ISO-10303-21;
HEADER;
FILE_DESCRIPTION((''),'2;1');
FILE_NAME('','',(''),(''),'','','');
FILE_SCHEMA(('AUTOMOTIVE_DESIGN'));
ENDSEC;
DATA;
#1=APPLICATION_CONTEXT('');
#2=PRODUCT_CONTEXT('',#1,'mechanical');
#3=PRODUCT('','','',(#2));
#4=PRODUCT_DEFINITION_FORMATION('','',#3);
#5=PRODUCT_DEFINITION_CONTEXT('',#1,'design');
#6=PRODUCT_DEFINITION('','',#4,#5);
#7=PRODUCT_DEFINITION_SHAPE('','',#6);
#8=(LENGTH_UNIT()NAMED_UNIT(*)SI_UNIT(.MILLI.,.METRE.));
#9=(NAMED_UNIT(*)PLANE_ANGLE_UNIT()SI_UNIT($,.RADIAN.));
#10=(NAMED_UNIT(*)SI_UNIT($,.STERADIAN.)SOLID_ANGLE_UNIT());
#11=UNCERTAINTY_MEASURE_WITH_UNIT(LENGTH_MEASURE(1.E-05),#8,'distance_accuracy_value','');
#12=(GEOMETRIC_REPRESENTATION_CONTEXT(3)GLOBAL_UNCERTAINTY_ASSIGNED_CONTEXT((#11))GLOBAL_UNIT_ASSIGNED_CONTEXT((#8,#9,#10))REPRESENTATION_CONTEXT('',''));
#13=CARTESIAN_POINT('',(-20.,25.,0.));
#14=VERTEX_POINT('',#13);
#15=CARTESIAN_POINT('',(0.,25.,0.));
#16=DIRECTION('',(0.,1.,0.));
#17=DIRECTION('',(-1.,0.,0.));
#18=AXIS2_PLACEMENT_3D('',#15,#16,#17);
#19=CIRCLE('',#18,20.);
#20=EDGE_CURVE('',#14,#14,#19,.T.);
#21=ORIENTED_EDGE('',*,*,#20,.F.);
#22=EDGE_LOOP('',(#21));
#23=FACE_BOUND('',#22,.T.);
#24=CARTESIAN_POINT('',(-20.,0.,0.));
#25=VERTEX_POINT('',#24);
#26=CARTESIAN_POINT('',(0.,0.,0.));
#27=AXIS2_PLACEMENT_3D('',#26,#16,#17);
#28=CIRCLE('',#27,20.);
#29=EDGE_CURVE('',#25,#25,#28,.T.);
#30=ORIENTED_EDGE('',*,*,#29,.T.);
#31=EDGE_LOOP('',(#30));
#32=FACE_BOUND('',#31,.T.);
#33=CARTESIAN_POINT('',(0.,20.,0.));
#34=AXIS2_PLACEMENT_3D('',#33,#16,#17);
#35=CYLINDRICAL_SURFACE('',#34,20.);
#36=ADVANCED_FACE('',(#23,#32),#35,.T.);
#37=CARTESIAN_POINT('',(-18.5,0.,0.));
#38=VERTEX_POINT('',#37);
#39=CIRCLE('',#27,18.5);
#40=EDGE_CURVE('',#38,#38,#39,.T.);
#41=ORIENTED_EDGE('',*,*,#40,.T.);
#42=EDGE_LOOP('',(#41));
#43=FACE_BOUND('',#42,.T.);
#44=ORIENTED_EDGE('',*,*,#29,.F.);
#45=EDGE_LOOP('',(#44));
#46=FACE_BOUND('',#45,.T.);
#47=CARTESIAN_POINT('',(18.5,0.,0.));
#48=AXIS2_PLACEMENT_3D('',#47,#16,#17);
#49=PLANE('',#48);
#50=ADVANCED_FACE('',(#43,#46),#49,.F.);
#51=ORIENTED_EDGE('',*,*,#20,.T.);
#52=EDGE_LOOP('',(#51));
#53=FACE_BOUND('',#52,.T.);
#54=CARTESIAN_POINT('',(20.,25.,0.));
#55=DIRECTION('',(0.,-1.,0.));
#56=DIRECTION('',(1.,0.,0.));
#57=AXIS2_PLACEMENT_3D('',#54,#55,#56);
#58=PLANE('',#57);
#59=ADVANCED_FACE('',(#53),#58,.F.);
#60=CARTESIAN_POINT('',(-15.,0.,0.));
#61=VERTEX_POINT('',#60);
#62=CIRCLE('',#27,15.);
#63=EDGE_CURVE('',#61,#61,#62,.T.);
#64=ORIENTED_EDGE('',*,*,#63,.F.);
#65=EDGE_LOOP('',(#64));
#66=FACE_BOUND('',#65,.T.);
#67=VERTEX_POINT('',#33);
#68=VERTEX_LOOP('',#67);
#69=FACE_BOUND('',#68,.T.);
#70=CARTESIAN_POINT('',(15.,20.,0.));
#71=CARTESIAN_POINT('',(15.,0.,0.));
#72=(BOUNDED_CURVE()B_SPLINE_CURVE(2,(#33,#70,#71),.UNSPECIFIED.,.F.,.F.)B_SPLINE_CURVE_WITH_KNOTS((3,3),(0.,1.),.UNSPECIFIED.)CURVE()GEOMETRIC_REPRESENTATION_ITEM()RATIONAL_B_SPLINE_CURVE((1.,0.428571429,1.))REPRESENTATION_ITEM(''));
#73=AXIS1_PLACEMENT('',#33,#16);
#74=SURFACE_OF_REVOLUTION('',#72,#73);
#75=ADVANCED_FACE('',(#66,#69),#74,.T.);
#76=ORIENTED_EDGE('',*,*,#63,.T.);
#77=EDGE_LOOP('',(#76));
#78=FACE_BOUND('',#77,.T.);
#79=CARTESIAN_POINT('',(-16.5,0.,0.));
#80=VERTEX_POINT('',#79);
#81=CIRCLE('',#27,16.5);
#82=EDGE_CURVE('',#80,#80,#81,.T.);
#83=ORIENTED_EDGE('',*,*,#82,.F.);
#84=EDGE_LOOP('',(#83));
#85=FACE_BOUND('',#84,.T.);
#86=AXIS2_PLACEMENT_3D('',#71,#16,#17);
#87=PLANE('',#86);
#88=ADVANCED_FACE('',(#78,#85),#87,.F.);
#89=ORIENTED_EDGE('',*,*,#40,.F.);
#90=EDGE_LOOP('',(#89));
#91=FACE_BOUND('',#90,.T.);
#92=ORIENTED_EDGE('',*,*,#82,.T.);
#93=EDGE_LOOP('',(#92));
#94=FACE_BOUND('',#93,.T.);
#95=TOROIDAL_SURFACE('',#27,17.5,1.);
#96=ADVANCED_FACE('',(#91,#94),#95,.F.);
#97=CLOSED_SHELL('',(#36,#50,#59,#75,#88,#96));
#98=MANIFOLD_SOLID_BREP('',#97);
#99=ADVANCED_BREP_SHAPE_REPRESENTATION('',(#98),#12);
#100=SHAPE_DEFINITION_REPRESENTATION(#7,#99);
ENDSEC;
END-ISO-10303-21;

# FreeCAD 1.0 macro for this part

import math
import FreeCAD as App
import Part
import Sketcher
from FreeCAD import Vector

doc = App.newDocument("Part")
body = doc.addObject("PartDesign::Body", "Body")

# Sketch on XY plane
sketch1 = doc.addObject("Sketcher::SketchObject", "Sketch")
body.addObject(sketch1)
sketch1.AttachmentSupport = (doc.XY_Plane, [""])
sketch1.MapMode = "FlatFace"
sketch1.addGeometry([
    Part.LineSegment(Vector(20, 0, 0), Vector(20, 25, 0)),  # 0
    Part.LineSegment(Vector(20, 25, 0), Vector(0, 25, 0)),  # 1
    Part.LineSegment(Vector(0, 25, 0), Vector(0, 20, 0)),  # 2
    Part.BSplineCurve([Vector(0, 20, 0), Vector(15, 20, 0), Vector(15, 0, 0)], [3, 3], [0, 1], False, 2, [1, 0.428571429, 1], False),  # 3
    Part.LineSegment(Vector(15, 0, 0), Vector(16.5, 0, 0)),  # 4
    Part.ArcOfCircle(Part.Circle(Vector(17.5, 0, 0), Vector(0, 0, 1), 1), math.radians(0), math.radians(180)),  # 5
    Part.LineSegment(Vector(18.5, 0, 0), Vector(20, 0, 0)),  # 6
], False)
sketch1.addConstraint([
    Sketcher.Constraint("Block", 3),
    Sketcher.Constraint("Coincident", 0, 2, 1, 1),
    Sketcher.Constraint("Coincident", 1, 2, 2, 1),
    Sketcher.Constraint("Coincident", 2, 2, 3, 1),
    Sketcher.Constraint("Coincident", 3, 2, 4, 1),
    Sketcher.Constraint("Coincident", 4, 2, 5, 2),
    Sketcher.Constraint("Coincident", 5, 1, 6, 1),
    Sketcher.Constraint("Coincident", 6, 2, 0, 1),
    Sketcher.Constraint("Vertical", 0),
    Sketcher.Constraint("Horizontal", 1),
    Sketcher.Constraint("Vertical", 2),
    Sketcher.Constraint("Horizontal", 4),
    Sketcher.Constraint("Horizontal", 6),
    Sketcher.Constraint("PointOnObject", 5, 3, -1),
    Sketcher.Constraint("PointOnObject", 5, 1, -1),
    Sketcher.Constraint("Equal", 4, 6),
    Sketcher.Constraint("Radius", 5, 1.0),
    Sketcher.Constraint("DistanceX", 1, 2, 1, 1, 20.0),
    Sketcher.Constraint("DistanceY", 0, 1, 0, 2, 25.0),
])
revolution = doc.addObject("PartDesign::Revolution", "Revolution")
body.addObject(revolution)
revolution.Profile = sketch1
revolution.ReferenceAxis = (sketch1, ["V_Axis"])
revolution.Angle = 360

doc.recompute()
